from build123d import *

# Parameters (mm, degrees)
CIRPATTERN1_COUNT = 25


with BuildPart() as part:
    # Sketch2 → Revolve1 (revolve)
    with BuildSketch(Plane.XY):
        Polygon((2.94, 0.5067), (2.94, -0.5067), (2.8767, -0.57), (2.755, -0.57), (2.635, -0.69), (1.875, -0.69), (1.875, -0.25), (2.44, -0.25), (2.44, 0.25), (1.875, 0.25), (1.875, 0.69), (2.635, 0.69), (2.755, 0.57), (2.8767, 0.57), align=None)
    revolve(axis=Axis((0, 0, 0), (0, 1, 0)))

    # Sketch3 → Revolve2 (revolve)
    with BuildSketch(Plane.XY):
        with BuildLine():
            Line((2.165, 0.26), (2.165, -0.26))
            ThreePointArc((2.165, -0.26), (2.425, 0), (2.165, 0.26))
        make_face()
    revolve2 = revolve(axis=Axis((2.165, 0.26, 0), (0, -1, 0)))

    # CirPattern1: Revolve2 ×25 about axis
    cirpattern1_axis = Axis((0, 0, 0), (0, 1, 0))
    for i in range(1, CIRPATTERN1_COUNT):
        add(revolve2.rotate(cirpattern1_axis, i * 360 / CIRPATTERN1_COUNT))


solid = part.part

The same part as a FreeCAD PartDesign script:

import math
import FreeCAD as App
import Part
import Sketcher
from FreeCAD import Vector

doc = App.newDocument("Part")
body = doc.addObject("PartDesign::Body", "Body")

# Sketch on XY plane
sketch1 = body.newObject("Sketcher::SketchObject", "Sketch")
sketch1.AttachmentSupport = (doc.getObject("XY_Plane"), [""])
sketch1.MapMode = "FlatFace"
sketch1.addGeometry([
    Part.LineSegment(Vector(2.94, -0.51, 0), Vector(2.94, 0.51, 0)),  # 0
    Part.LineSegment(Vector(2.94, 0.51, 0), Vector(2.88, 0.57, 0)),  # 1
    Part.LineSegment(Vector(2.88, 0.57, 0), Vector(2.75, 0.57, 0)),  # 2
    Part.LineSegment(Vector(2.75, 0.57, 0), Vector(2.63, 0.69, 0)),  # 3
    Part.LineSegment(Vector(2.63, 0.69, 0), Vector(1.88, 0.69, 0)),  # 4
    Part.LineSegment(Vector(1.88, 0.69, 0), Vector(1.88, 0.25, 0)),  # 5
    Part.LineSegment(Vector(1.88, 0.25, 0), Vector(2.44, 0.25, 0)),  # 6
    Part.LineSegment(Vector(2.44, 0.25, 0), Vector(2.44, -0.25, 0)),  # 7
    Part.LineSegment(Vector(2.44, -0.25, 0), Vector(1.88, -0.25, 0)),  # 8
    Part.LineSegment(Vector(1.88, -0.25, 0), Vector(1.88, -0.69, 0)),  # 9
    Part.LineSegment(Vector(1.88, -0.69, 0), Vector(2.63, -0.69, 0)),  # 10
    Part.LineSegment(Vector(2.63, -0.69, 0), Vector(2.75, -0.57, 0)),  # 11
    Part.LineSegment(Vector(2.75, -0.57, 0), Vector(2.88, -0.57, 0)),  # 12
    Part.LineSegment(Vector(2.88, -0.57, 0), Vector(2.94, -0.51, 0)),  # 13
], False)
sketch1.addConstraint([
    Sketcher.Constraint("Coincident", 0, 2, 1, 1),
    Sketcher.Constraint("Coincident", 1, 2, 2, 1),
    Sketcher.Constraint("Coincident", 2, 2, 3, 1),
    Sketcher.Constraint("Coincident", 3, 2, 4, 1),
    Sketcher.Constraint("Coincident", 4, 2, 5, 1),
    Sketcher.Constraint("Coincident", 5, 2, 6, 1),
    Sketcher.Constraint("Coincident", 6, 2, 7, 1),
    Sketcher.Constraint("Coincident", 7, 2, 8, 1),
    Sketcher.Constraint("Coincident", 8, 2, 9, 1),
    Sketcher.Constraint("Coincident", 9, 2, 10, 1),
    Sketcher.Constraint("Coincident", 10, 2, 11, 1),
    Sketcher.Constraint("Coincident", 11, 2, 12, 1),
    Sketcher.Constraint("Coincident", 12, 2, 13, 1),
    Sketcher.Constraint("Coincident", 13, 2, 0, 1),
    Sketcher.Constraint("Vertical", 0),
    Sketcher.Constraint("Horizontal", 2),
    Sketcher.Constraint("Horizontal", 4),
    Sketcher.Constraint("Vertical", 5),
    Sketcher.Constraint("Horizontal", 6),
    Sketcher.Constraint("Vertical", 7),
    Sketcher.Constraint("Horizontal", 8),
    Sketcher.Constraint("Vertical", 9),
    Sketcher.Constraint("Horizontal", 10),
    Sketcher.Constraint("Horizontal", 12),
    Sketcher.Constraint("Symmetric", 5, 2, 8, 2, -1),
    Sketcher.Constraint("Symmetric", 3, 2, 10, 2, -1),
    Sketcher.Constraint("Symmetric", 2, 2, 11, 2, -1),
    Sketcher.Constraint("Parallel", 1, 3),
    Sketcher.Constraint("Perpendicular", 3, 11),
    Sketcher.Constraint("Parallel", 11, 13),
    Sketcher.Constraint("Vertical", 1, 2, 12, 2),
    Sketcher.Constraint("DistanceY", 7, 2, 7, 1, 0.5),
    Sketcher.Constraint("DistanceX", 4, 2, 4, 1, 0.76),
    Sketcher.Constraint("DistanceY", 5, 2, 5, 1, 0.44),
    Sketcher.Constraint("DistanceX", 6, 2, 0, 2, 0.5),
    Sketcher.Constraint("DistanceX", 6, 1, 6, 2, 0.565),
    Sketcher.Constraint("DistanceX", -1, 1, 0, 2, 2.94),
    Sketcher.Constraint("DistanceY", -1, 1, 1, 2, 0.57),
    Sketcher.Constraint("DistanceX", 2, 2, 2, 1, 0.1217),
])
revolution = body.newObject("PartDesign::Revolution", "Revolution")
revolution.Profile = sketch1
revolution.ReferenceAxis = (sketch1, ["V_Axis"])
revolution.Angle = 360

# Sketch on XY plane
sketch2 = body.newObject("Sketcher::SketchObject", "Sketch001")
sketch2.AttachmentSupport = (doc.getObject("XY_Plane"), [""])
sketch2.MapMode = "FlatFace"
sketch2.addGeometry([
    Part.LineSegment(Vector(2.17, 0.26, 0), Vector(2.17, -0.26, 0)),
    Part.ArcOfCircle(Part.Circle(Vector(2.17, 0, 0), Vector(0, 0, 1), 0.26), math.radians(-90), math.radians(90)),
], False)
sketch2.addGeometry(Part.LineSegment(Vector(2.17, 0.26, 0), Vector(2.17, -0.26, 0)), True)  # axis
sketch2.addConstraint([
    Sketcher.Constraint("Coincident", 0, 1, 1, 2),
    Sketcher.Constraint("Coincident", 1, 1, 0, 2),
    Sketcher.Constraint("Vertical", 0),
    Sketcher.Constraint("Vertical", 2),
    Sketcher.Constraint("Coincident", 2, 1, 0, 1),
    Sketcher.Constraint("PointOnObject", 1, 3, -1),
    Sketcher.Constraint("Vertical", 1, 3, 0, 1),
    Sketcher.Constraint("Equal", 0, 2),
    Sketcher.Constraint("Radius", 1, 0.26),
    Sketcher.Constraint("DistanceX", -1, 1, 1, 3, 2.165),
])
revolution2 = body.newObject("PartDesign::Revolution", "Revolution001")
revolution2.Profile = sketch2
revolution2.ReferenceAxis = (sketch2, ["Axis0"])
revolution2.Angle = 360
doc.recompute()

polarpattern = body.newObject("PartDesign::PolarPattern", "PolarPattern")
polarpattern.Originals = [revolution2]
polarpattern.Axis = (doc.getObject("Y_Axis"), [""])
polarpattern.Angle = 360
polarpattern.Occurrences = 25
body.Tip = polarpattern

doc.recompute()
